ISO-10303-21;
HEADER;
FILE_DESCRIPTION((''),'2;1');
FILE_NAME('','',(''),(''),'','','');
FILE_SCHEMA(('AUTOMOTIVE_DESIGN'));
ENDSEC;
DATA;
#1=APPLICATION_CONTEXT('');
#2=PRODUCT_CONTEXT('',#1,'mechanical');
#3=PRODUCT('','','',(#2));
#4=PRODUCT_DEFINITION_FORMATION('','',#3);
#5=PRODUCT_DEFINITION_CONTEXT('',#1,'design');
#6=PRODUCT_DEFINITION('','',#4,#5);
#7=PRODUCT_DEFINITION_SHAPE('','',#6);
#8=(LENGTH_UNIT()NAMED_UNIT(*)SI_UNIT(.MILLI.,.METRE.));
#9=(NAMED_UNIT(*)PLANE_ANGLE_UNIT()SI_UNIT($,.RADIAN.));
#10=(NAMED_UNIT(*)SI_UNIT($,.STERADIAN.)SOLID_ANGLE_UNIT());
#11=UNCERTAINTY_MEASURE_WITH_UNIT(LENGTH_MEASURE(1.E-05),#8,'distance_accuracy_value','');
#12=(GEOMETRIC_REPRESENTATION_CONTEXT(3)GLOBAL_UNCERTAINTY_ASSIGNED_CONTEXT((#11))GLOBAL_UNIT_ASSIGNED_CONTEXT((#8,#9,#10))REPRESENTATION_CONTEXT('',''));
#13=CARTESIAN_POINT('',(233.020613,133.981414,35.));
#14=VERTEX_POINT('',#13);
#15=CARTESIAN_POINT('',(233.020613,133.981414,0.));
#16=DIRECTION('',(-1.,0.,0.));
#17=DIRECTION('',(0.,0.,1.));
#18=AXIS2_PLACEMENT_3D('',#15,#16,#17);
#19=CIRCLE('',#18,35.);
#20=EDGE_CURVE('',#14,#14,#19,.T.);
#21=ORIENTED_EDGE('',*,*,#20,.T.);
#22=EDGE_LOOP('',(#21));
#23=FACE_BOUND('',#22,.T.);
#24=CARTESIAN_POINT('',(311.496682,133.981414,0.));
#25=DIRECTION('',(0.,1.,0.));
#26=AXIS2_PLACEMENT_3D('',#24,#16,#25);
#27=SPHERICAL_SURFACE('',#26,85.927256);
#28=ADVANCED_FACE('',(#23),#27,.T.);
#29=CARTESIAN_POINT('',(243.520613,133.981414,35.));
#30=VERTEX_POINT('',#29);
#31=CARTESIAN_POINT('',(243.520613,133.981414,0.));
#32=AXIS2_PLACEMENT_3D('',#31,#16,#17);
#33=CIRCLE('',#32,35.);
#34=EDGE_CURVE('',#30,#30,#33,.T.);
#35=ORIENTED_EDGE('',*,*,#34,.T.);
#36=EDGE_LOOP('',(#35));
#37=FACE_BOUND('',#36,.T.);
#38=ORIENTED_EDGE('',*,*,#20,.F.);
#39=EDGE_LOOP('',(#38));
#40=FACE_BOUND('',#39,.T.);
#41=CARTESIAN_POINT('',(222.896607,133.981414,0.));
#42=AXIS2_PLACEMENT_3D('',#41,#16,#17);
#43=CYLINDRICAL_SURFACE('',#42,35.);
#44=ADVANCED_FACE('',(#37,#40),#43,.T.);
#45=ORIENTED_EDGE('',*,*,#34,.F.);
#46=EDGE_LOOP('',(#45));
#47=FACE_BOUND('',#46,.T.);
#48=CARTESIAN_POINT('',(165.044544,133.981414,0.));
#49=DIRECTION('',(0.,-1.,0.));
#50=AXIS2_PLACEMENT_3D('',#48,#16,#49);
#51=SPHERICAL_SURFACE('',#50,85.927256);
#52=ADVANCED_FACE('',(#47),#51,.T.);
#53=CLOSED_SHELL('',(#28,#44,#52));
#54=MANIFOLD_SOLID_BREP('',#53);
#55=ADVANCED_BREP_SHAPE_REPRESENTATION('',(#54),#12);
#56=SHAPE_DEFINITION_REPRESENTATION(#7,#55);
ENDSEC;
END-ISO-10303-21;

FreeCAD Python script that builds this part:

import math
import FreeCAD as App
import Part
import Sketcher

doc = App.newDocument("Part")
body = doc.addObject("PartDesign::Body", "Body")

# Sketch on XY plane
sketch1 = body.newObject("Sketcher::SketchObject", "Sketch")
sketch1.AttachmentSupport = (doc.getObject("XY_Plane"), [""])
sketch1.MapMode = "FlatFace"
sketch1.addGeometry(Part.LineSegment(App.Vector(244, 169, 0), App.Vector(233, 169, 0)), False)
sketch1.addGeometry(Part.ArcOfCircle(Part.Circle(App.Vector(311, 134, 0), App.Vector(0, 0, 1), 86), math.radians(156), math.radians(180)), False)
sketch1.addGeometry(Part.LineSegment(App.Vector(226, 134, 0), App.Vector(251, 134, 0)), False)
sketch1.addGeometry(Part.ArcOfCircle(Part.Circle(App.Vector(165, 134, 0), App.Vector(0, 0, 1), 86), math.radians(0), math.radians(24)), False)
sketch1.addGeometry(Part.LineSegment(App.Vector(165, 134, 0), App.Vector(311, 134, 0)), True)  # axis
sketch1.addConstraint(Sketcher.Constraint("Coincident", 0, 2, 1, 1))
sketch1.addConstraint(Sketcher.Constraint("Coincident", 1, 2, 2, 1))
sketch1.addConstraint(Sketcher.Constraint("Coincident", 2, 2, 3, 1))
sketch1.addConstraint(Sketcher.Constraint("Coincident", 3, 2, 0, 1))
sketch1.addConstraint(Sketcher.Constraint("Horizontal", 0))
sketch1.addConstraint(Sketcher.Constraint("Horizontal", 2))
sketch1.addConstraint(Sketcher.Constraint("Horizontal", 4))
sketch1.addConstraint(Sketcher.Constraint("Coincident", 4, 1, 3, 3))
sketch1.addConstraint(Sketcher.Constraint("Coincident", 4, 2, 1, 3))
sketch1.addConstraint(Sketcher.Constraint("Equal", 1, 3))
sketch1.addConstraint(Sketcher.Constraint("Horizontal", 3, 3, 1, 2))
sketch1.addConstraint(Sketcher.Constraint("DistanceX", 0, 2, 0, 1, 10.5))
sketch1.addConstraint(Sketcher.Constraint("DistanceY", 3, 3, 0, 2, 35.0))
sketch1.addConstraint(Sketcher.Constraint("Radius", 1, 85.927256))
sketch1.addConstraint(Sketcher.Constraint("DistanceX", -1, 1, 2, 2, 250.9718))
sketch1.addConstraint(Sketcher.Constraint("DistanceY", -1, 1, 1, 3, 133.981414))
revolution = body.newObject("PartDesign::Revolution", "Revolution")
revolution.Profile = sketch1
revolution.ReferenceAxis = (sketch1, ["Axis0"])
revolution.Angle = 360

doc.recompute()
